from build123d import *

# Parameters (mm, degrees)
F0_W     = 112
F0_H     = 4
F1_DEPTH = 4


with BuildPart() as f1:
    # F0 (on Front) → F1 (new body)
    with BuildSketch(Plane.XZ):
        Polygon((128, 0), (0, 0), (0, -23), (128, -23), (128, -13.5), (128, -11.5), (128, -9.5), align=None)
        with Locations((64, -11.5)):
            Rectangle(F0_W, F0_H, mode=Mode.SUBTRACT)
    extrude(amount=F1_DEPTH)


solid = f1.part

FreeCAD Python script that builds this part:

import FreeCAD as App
import Part
import Sketcher
from FreeCAD import Vector
Q = App.Units.Quantity


def add_polygon(sketch, points):
    """Adds a closed chain of lines whose ends are joined by coincident constraints."""
    first, n = sketch.GeometryCount, len(points)
    for a, b in zip(points, points[1:] + points[:1]):
        sketch.addGeometry(Part.LineSegment(App.Vector(*a, 0), App.Vector(*b, 0)), False)
    for i in range(n):
        sketch.addConstraint(Sketcher.Constraint("Coincident", first + i, 2, first + (i + 1) % n, 1))

doc = App.newDocument("Part")
body = doc.addObject("PartDesign::Body", "Body")

# Sketch on XZ plane
sketch1 = body.newObject("Sketcher::SketchObject", "Sketch")
sketch1.AttachmentSupport = (doc.getObject("XZ_Plane"), [""])
sketch1.MapMode = "FlatFace"
add_polygon(sketch1, [(128, 0), (0, 0), (0, -23), (128, -23)])  # lines 0-3
add_polygon(sketch1, [(120, -13.5), (8, -13.5), (8, -9.5), (120, -9.5)])  # lines 4-7
sketch1.addConstraint(Sketcher.Constraint("Horizontal", 0))
sketch1.addConstraint(Sketcher.Constraint("Vertical", 1))
sketch1.addConstraint(Sketcher.Constraint("Horizontal", 2))
sketch1.addConstraint(Sketcher.Constraint("Vertical", 3))
sketch1.addConstraint(Sketcher.Constraint("Horizontal", 4))
sketch1.addConstraint(Sketcher.Constraint("Vertical", 5))
sketch1.addConstraint(Sketcher.Constraint("Horizontal", 6))
sketch1.addConstraint(Sketcher.Constraint("Vertical", 7))
sketch1.addConstraint(Sketcher.Constraint("Coincident", 0, 2, -1, 1))
sketch1.addConstraint(Sketcher.Constraint("DistanceX", 0, 2, 0, 1, Q("128 mm")))
sketch1.addConstraint(Sketcher.Constraint("DistanceX", 4, 2, 4, 1, Q("112 mm")))
sketch1.addConstraint(Sketcher.Constraint("DistanceY", 1, 2, 1, 1, Q("23 mm")))
sketch1.addConstraint(Sketcher.Constraint("DistanceY", 5, 1, 5, 2, Q("4 mm")))
sketch1.addConstraint(Sketcher.Constraint("DistanceX", -1, 1, 4, 2, Q("8 mm")))
sketch1.addConstraint(Sketcher.Constraint("DistanceY", 4, 2, -1, 1, Q("13.5 mm")))
pad1 = body.newObject("PartDesign::Pad", "Pad")
pad1.Profile = sketch1
pad1.Length = 4

doc.recompute()
